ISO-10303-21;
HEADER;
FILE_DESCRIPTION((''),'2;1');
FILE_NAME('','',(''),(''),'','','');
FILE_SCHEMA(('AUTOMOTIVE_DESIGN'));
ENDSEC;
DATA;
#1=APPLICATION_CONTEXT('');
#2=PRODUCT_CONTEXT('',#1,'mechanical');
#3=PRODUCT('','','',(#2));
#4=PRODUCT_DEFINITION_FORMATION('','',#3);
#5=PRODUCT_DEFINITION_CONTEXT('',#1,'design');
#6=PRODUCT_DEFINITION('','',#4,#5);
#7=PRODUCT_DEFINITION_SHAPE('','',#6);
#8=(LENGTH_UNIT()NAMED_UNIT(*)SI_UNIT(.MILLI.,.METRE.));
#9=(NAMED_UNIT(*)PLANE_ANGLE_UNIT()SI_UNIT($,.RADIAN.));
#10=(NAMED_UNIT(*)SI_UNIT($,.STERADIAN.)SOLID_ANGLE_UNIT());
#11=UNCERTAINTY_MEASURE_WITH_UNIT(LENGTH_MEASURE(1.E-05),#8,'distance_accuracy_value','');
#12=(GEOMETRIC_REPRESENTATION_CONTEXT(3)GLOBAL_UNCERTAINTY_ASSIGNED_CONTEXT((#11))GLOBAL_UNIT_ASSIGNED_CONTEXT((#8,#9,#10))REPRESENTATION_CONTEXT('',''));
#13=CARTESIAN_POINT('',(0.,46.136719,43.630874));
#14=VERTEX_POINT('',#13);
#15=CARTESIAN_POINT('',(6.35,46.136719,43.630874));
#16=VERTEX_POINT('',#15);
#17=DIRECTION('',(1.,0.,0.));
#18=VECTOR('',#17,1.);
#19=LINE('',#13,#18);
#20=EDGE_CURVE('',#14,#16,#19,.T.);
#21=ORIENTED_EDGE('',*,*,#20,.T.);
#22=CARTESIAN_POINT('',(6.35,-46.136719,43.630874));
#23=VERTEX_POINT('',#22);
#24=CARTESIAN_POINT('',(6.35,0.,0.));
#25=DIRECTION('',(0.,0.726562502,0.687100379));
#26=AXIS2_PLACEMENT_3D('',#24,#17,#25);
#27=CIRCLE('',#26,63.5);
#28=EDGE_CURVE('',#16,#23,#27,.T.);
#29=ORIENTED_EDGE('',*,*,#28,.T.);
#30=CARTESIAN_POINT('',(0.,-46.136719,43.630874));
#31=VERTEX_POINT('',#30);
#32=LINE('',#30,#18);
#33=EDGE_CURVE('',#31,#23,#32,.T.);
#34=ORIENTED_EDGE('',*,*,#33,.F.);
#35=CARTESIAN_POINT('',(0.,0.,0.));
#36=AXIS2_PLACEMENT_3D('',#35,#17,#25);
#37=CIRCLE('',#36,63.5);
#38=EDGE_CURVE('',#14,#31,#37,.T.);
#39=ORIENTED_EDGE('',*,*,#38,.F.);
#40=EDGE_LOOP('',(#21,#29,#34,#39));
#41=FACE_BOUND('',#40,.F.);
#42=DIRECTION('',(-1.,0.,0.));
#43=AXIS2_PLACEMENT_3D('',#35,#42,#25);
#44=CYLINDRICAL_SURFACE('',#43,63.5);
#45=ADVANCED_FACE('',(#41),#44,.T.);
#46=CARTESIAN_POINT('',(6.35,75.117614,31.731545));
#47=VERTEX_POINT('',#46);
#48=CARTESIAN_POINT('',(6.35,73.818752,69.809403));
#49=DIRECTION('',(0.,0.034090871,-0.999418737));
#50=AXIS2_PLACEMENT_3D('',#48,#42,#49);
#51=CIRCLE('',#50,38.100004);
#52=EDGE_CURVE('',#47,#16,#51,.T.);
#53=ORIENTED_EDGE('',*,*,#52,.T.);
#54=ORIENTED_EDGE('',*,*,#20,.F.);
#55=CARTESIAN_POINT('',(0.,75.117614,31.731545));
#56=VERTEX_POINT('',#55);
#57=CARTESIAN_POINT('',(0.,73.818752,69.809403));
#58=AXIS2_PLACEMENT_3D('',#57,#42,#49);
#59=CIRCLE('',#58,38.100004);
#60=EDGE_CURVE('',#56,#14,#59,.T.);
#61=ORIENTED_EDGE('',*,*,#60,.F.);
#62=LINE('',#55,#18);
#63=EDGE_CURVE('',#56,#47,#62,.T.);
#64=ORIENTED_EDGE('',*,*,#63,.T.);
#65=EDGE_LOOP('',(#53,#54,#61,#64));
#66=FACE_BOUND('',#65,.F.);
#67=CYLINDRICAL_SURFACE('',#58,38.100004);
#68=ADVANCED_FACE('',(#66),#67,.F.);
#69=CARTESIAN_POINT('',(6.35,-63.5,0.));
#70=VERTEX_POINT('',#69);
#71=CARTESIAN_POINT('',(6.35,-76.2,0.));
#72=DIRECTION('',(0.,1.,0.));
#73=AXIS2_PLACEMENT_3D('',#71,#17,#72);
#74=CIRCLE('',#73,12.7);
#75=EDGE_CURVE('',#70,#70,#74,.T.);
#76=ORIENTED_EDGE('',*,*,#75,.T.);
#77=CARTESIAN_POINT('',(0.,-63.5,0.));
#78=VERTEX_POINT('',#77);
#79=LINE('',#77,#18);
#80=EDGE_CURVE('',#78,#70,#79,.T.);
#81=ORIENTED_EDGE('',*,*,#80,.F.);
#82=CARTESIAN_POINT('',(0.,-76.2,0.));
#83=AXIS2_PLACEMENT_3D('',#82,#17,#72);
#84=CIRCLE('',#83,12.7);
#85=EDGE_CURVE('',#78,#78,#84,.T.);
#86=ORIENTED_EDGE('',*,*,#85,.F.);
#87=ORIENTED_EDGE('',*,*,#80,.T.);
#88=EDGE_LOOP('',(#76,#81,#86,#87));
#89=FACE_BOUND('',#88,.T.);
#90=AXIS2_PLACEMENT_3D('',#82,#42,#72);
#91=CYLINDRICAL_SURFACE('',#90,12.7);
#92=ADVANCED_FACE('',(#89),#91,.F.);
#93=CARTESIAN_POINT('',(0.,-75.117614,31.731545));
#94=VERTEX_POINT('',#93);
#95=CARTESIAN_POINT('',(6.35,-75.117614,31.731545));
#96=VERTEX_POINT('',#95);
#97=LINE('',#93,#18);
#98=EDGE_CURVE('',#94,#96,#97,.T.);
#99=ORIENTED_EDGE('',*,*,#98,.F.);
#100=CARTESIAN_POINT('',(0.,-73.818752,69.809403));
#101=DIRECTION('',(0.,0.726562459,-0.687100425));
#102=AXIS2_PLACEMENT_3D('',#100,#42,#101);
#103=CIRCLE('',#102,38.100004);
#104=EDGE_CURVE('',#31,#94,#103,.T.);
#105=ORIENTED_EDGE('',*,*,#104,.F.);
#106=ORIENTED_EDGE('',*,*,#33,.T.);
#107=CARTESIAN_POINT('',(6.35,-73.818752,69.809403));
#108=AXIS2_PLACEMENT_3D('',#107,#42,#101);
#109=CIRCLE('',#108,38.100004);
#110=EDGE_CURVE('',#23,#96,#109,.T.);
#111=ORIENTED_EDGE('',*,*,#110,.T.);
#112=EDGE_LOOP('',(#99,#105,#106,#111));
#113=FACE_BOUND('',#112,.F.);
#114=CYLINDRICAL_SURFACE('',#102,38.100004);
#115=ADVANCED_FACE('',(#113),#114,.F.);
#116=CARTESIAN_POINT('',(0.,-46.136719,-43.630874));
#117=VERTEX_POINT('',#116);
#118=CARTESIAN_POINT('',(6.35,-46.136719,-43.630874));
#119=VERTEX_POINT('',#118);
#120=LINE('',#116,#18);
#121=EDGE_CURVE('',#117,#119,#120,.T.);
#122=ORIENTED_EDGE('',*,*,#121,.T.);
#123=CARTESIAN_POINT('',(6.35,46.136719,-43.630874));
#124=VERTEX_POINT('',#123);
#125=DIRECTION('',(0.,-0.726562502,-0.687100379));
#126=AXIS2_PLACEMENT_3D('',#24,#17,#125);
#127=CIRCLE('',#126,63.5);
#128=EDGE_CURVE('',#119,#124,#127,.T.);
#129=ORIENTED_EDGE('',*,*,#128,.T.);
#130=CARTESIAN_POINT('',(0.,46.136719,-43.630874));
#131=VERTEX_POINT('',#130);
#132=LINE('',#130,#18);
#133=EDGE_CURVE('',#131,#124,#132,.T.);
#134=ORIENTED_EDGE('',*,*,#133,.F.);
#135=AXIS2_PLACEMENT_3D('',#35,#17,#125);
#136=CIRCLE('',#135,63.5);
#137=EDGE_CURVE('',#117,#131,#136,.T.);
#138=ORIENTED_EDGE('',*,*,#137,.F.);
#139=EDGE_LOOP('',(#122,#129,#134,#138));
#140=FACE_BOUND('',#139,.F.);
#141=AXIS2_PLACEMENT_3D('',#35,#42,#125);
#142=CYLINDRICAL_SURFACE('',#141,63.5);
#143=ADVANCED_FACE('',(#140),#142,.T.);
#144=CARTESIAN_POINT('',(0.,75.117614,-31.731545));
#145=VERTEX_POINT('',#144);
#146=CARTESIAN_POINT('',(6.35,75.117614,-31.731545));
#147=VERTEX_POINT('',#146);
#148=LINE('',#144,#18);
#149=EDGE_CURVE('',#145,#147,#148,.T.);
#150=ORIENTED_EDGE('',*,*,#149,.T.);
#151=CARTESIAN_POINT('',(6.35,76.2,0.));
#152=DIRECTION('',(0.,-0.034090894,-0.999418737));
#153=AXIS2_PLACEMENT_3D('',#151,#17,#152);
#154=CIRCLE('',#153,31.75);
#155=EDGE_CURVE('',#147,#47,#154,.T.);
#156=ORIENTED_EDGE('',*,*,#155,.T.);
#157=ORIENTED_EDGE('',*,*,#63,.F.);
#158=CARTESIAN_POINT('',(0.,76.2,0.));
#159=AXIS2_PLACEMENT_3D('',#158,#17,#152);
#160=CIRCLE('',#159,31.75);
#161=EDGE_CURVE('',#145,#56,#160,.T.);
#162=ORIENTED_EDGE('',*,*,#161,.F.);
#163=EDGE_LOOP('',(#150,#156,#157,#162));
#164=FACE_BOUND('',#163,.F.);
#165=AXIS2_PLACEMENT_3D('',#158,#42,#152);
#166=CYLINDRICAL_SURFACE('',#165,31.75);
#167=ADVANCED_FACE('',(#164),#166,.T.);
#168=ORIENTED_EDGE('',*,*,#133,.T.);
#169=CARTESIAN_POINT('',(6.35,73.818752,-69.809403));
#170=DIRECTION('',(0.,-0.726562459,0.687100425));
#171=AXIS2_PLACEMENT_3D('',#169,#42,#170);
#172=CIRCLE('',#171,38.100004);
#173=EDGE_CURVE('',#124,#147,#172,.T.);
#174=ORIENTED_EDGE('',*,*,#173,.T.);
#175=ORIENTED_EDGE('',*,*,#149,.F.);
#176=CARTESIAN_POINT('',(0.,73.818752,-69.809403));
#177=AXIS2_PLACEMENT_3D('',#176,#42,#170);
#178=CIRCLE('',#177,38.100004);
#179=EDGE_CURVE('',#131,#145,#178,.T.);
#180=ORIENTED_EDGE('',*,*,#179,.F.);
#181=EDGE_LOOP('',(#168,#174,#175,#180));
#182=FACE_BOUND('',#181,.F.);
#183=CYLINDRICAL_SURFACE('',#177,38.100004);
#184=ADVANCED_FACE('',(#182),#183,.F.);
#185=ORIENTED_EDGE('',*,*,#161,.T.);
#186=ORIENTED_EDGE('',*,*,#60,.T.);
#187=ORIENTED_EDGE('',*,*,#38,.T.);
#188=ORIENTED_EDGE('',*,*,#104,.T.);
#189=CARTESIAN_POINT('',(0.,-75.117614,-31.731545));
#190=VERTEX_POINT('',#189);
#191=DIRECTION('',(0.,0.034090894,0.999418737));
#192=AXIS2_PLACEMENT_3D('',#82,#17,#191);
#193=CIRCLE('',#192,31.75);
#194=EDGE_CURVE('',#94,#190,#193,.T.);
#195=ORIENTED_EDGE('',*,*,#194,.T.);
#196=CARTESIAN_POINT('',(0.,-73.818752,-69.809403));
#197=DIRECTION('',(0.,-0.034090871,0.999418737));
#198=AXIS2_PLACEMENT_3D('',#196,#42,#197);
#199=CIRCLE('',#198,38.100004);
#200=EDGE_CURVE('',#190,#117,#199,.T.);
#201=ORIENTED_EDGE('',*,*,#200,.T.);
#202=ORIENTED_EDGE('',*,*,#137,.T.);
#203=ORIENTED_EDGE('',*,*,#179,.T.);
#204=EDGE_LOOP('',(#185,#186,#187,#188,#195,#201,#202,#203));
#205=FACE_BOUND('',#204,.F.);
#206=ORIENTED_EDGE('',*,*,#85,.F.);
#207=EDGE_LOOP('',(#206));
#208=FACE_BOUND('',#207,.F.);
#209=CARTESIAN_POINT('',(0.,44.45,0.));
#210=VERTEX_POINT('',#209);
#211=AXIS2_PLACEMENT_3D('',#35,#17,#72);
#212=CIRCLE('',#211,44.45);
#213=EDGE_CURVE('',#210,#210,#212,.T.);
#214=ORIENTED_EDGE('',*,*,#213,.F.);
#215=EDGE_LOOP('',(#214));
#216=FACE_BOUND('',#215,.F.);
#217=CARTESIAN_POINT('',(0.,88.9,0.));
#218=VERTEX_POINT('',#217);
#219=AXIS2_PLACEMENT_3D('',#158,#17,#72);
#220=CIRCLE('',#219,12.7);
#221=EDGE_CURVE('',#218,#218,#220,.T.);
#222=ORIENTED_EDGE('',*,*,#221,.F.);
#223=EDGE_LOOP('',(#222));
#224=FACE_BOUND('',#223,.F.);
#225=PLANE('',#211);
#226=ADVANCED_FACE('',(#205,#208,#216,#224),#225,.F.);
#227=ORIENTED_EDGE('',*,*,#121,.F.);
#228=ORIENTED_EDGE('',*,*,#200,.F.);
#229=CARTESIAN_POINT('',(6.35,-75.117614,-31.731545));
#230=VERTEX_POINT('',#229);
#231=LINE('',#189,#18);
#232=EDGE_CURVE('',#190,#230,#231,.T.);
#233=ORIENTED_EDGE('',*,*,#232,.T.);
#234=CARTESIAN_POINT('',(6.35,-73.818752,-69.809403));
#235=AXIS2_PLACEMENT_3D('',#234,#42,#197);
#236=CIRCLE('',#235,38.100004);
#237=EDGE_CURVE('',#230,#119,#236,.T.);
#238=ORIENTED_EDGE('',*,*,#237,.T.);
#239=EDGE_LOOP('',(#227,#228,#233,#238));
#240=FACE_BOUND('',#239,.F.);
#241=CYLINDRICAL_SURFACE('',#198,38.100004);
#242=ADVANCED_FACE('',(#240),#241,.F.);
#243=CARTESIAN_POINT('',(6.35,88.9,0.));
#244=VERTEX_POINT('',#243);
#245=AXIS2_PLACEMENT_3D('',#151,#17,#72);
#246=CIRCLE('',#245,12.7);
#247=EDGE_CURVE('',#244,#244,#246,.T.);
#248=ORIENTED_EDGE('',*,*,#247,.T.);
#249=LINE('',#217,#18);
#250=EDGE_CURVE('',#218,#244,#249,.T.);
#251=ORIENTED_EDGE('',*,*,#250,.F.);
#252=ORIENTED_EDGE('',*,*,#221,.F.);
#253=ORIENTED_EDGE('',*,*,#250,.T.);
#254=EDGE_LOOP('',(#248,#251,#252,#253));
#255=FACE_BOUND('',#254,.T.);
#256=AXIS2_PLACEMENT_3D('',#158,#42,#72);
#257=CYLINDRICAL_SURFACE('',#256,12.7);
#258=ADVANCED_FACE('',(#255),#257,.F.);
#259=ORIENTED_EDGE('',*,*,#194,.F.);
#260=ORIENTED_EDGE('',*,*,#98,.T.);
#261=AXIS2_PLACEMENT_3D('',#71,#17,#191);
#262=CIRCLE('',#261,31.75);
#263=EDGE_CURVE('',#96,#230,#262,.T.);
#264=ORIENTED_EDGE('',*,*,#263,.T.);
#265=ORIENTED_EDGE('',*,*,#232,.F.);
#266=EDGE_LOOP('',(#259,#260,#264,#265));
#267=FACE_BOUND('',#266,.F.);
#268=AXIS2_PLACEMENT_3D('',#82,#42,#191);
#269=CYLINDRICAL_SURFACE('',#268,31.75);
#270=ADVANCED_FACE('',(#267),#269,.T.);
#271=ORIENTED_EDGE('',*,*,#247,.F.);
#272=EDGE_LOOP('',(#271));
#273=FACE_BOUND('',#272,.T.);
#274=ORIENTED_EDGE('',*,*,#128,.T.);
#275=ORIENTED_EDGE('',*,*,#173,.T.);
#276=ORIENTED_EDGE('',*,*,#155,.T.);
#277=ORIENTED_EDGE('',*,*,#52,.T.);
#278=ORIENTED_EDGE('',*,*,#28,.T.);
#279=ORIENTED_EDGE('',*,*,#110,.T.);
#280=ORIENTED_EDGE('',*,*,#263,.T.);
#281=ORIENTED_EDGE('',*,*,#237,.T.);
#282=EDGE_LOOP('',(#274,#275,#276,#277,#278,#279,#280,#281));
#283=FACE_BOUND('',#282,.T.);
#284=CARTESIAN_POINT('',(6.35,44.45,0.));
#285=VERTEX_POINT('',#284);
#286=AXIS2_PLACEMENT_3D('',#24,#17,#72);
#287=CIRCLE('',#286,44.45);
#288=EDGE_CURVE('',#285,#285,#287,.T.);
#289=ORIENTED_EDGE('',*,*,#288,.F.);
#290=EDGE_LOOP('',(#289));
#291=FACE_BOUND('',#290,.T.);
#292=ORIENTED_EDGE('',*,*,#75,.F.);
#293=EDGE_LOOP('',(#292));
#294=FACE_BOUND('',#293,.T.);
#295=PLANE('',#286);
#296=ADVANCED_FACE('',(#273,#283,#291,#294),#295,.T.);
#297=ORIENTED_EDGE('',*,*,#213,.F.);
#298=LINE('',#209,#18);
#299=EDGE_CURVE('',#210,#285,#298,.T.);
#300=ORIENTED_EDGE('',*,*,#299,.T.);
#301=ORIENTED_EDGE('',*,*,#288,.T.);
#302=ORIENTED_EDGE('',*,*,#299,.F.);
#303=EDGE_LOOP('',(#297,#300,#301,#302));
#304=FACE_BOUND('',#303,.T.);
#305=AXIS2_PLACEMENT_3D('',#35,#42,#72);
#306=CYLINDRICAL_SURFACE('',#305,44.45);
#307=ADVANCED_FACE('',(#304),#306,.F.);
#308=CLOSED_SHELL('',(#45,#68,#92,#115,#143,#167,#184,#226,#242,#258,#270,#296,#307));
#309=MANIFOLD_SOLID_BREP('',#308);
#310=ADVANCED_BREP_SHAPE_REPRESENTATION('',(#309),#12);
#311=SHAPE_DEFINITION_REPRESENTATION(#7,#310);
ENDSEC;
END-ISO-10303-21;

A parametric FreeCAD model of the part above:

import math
import FreeCAD as App
import Part
import Sketcher
Q = App.Units.Quantity

doc = App.newDocument("Part")
body = doc.addObject("PartDesign::Body", "Body")

# Sketch on YZ plane
sketch1 = doc.addObject("Sketcher::SketchObject", "Sketch")
body.addObject(sketch1)
sketch1.AttachmentSupport = (doc.YZ_Plane, [""])
sketch1.MapMode = "FlatFace"
sketch1.addGeometry([
    Part.ArcOfCircle(Part.Circle(App.Vector(73.818752, 69.809403, 0), App.Vector(0, 0, 1), 38.100004), math.radians(-136.598982), math.radians(-88.046358)),  # 0
    Part.ArcOfCircle(Part.Circle(App.Vector(0, 0, 0), App.Vector(0, 0, 1), 63.5), math.radians(43.401015), math.radians(136.598985)),  # 1
    Part.ArcOfCircle(Part.Circle(App.Vector(-73.818752, 69.809403, 0), App.Vector(0, 0, 1), 38.100004), math.radians(-91.953642), math.radians(-43.401018)),  # 2
    Part.ArcOfCircle(Part.Circle(App.Vector(-76.2, 0, 0), App.Vector(0, 0, 1), 31.75), math.radians(88.046357), math.radians(271.953643)),  # 3
    Part.ArcOfCircle(Part.Circle(App.Vector(-73.818752, -69.809403, 0), App.Vector(0, 0, 1), 38.100004), math.radians(43.401018), math.radians(91.953642)),  # 4
    Part.ArcOfCircle(Part.Circle(App.Vector(0, 0, 0), App.Vector(0, 0, 1), 63.5), math.radians(-136.598985), math.radians(-43.401015)),  # 5
    Part.ArcOfCircle(Part.Circle(App.Vector(73.818752, -69.809403, 0), App.Vector(0, 0, 1), 38.100004), math.radians(88.046358), math.radians(136.598982)),  # 6
    Part.ArcOfCircle(Part.Circle(App.Vector(76.2, 0, 0), App.Vector(0, 0, 1), 31.75), math.radians(-91.953643), math.radians(91.953643)),  # 7
    Part.Circle(App.Vector(-76.2, 0, 0), App.Vector(0, 0, 1), 12.7),  # 8
    Part.Circle(App.Vector(0, 0, 0), App.Vector(0, 0, 1), 44.45),  # 9
    Part.Circle(App.Vector(76.2, 0, 0), App.Vector(0, 0, 1), 12.7),  # 10
], False)
sketch1.addConstraint([
    Sketcher.Constraint("Tangent", 0, 1, 1, 1),
    Sketcher.Constraint("Tangent", 1, 2, 2, 2),
    Sketcher.Constraint("Tangent", 2, 1, 3, 1),
    Sketcher.Constraint("Tangent", 3, 2, 4, 2),
    Sketcher.Constraint("Tangent", 4, 1, 5, 1),
    Sketcher.Constraint("Tangent", 5, 2, 6, 2),
    Sketcher.Constraint("Tangent", 6, 1, 7, 1),
    Sketcher.Constraint("Tangent", 7, 2, 0, 2),
    Sketcher.Constraint("Coincident", 1, 3, -1, 1),
    Sketcher.Constraint("Coincident", 5, 3, -1, 1),
    Sketcher.Constraint("Coincident", 9, 3, -1, 1),
    Sketcher.Constraint("Coincident", 8, 3, 3, 3),
    Sketcher.Constraint("Coincident", 10, 3, 7, 3),
    Sketcher.Constraint("Equal", 0, 2),
    Sketcher.Constraint("Equal", 2, 4),
    Sketcher.Constraint("Equal", 1, 5),
    Sketcher.Constraint("Equal", 4, 6),
    Sketcher.Constraint("Equal", 3, 7),
    Sketcher.Constraint("Equal", 8, 10),
    Sketcher.Constraint("Symmetric", 3, 3, 7, 3, -1, 1),
    Sketcher.Constraint("PointOnObject", 3, 3, -1),
    Sketcher.Constraint("Diameter", 8, Q("1 in")),
    Sketcher.Constraint("Diameter", 9, Q("3.5 in")),
    Sketcher.Constraint("Radius", 0, Q("1.5000002 in")),
    Sketcher.Constraint("Radius", 1, Q("2.5 in")),
    Sketcher.Constraint("Radius", 3, Q("1.25 in")),
    Sketcher.Constraint("DistanceX", 3, 3, -1, 1, Q("3 in")),
])
pad1 = doc.addObject("PartDesign::Pad", "Pad")
body.addObject(pad1)
pad1.Profile = sketch1
pad1.Length = Q("0.25 in")

doc.recompute()
